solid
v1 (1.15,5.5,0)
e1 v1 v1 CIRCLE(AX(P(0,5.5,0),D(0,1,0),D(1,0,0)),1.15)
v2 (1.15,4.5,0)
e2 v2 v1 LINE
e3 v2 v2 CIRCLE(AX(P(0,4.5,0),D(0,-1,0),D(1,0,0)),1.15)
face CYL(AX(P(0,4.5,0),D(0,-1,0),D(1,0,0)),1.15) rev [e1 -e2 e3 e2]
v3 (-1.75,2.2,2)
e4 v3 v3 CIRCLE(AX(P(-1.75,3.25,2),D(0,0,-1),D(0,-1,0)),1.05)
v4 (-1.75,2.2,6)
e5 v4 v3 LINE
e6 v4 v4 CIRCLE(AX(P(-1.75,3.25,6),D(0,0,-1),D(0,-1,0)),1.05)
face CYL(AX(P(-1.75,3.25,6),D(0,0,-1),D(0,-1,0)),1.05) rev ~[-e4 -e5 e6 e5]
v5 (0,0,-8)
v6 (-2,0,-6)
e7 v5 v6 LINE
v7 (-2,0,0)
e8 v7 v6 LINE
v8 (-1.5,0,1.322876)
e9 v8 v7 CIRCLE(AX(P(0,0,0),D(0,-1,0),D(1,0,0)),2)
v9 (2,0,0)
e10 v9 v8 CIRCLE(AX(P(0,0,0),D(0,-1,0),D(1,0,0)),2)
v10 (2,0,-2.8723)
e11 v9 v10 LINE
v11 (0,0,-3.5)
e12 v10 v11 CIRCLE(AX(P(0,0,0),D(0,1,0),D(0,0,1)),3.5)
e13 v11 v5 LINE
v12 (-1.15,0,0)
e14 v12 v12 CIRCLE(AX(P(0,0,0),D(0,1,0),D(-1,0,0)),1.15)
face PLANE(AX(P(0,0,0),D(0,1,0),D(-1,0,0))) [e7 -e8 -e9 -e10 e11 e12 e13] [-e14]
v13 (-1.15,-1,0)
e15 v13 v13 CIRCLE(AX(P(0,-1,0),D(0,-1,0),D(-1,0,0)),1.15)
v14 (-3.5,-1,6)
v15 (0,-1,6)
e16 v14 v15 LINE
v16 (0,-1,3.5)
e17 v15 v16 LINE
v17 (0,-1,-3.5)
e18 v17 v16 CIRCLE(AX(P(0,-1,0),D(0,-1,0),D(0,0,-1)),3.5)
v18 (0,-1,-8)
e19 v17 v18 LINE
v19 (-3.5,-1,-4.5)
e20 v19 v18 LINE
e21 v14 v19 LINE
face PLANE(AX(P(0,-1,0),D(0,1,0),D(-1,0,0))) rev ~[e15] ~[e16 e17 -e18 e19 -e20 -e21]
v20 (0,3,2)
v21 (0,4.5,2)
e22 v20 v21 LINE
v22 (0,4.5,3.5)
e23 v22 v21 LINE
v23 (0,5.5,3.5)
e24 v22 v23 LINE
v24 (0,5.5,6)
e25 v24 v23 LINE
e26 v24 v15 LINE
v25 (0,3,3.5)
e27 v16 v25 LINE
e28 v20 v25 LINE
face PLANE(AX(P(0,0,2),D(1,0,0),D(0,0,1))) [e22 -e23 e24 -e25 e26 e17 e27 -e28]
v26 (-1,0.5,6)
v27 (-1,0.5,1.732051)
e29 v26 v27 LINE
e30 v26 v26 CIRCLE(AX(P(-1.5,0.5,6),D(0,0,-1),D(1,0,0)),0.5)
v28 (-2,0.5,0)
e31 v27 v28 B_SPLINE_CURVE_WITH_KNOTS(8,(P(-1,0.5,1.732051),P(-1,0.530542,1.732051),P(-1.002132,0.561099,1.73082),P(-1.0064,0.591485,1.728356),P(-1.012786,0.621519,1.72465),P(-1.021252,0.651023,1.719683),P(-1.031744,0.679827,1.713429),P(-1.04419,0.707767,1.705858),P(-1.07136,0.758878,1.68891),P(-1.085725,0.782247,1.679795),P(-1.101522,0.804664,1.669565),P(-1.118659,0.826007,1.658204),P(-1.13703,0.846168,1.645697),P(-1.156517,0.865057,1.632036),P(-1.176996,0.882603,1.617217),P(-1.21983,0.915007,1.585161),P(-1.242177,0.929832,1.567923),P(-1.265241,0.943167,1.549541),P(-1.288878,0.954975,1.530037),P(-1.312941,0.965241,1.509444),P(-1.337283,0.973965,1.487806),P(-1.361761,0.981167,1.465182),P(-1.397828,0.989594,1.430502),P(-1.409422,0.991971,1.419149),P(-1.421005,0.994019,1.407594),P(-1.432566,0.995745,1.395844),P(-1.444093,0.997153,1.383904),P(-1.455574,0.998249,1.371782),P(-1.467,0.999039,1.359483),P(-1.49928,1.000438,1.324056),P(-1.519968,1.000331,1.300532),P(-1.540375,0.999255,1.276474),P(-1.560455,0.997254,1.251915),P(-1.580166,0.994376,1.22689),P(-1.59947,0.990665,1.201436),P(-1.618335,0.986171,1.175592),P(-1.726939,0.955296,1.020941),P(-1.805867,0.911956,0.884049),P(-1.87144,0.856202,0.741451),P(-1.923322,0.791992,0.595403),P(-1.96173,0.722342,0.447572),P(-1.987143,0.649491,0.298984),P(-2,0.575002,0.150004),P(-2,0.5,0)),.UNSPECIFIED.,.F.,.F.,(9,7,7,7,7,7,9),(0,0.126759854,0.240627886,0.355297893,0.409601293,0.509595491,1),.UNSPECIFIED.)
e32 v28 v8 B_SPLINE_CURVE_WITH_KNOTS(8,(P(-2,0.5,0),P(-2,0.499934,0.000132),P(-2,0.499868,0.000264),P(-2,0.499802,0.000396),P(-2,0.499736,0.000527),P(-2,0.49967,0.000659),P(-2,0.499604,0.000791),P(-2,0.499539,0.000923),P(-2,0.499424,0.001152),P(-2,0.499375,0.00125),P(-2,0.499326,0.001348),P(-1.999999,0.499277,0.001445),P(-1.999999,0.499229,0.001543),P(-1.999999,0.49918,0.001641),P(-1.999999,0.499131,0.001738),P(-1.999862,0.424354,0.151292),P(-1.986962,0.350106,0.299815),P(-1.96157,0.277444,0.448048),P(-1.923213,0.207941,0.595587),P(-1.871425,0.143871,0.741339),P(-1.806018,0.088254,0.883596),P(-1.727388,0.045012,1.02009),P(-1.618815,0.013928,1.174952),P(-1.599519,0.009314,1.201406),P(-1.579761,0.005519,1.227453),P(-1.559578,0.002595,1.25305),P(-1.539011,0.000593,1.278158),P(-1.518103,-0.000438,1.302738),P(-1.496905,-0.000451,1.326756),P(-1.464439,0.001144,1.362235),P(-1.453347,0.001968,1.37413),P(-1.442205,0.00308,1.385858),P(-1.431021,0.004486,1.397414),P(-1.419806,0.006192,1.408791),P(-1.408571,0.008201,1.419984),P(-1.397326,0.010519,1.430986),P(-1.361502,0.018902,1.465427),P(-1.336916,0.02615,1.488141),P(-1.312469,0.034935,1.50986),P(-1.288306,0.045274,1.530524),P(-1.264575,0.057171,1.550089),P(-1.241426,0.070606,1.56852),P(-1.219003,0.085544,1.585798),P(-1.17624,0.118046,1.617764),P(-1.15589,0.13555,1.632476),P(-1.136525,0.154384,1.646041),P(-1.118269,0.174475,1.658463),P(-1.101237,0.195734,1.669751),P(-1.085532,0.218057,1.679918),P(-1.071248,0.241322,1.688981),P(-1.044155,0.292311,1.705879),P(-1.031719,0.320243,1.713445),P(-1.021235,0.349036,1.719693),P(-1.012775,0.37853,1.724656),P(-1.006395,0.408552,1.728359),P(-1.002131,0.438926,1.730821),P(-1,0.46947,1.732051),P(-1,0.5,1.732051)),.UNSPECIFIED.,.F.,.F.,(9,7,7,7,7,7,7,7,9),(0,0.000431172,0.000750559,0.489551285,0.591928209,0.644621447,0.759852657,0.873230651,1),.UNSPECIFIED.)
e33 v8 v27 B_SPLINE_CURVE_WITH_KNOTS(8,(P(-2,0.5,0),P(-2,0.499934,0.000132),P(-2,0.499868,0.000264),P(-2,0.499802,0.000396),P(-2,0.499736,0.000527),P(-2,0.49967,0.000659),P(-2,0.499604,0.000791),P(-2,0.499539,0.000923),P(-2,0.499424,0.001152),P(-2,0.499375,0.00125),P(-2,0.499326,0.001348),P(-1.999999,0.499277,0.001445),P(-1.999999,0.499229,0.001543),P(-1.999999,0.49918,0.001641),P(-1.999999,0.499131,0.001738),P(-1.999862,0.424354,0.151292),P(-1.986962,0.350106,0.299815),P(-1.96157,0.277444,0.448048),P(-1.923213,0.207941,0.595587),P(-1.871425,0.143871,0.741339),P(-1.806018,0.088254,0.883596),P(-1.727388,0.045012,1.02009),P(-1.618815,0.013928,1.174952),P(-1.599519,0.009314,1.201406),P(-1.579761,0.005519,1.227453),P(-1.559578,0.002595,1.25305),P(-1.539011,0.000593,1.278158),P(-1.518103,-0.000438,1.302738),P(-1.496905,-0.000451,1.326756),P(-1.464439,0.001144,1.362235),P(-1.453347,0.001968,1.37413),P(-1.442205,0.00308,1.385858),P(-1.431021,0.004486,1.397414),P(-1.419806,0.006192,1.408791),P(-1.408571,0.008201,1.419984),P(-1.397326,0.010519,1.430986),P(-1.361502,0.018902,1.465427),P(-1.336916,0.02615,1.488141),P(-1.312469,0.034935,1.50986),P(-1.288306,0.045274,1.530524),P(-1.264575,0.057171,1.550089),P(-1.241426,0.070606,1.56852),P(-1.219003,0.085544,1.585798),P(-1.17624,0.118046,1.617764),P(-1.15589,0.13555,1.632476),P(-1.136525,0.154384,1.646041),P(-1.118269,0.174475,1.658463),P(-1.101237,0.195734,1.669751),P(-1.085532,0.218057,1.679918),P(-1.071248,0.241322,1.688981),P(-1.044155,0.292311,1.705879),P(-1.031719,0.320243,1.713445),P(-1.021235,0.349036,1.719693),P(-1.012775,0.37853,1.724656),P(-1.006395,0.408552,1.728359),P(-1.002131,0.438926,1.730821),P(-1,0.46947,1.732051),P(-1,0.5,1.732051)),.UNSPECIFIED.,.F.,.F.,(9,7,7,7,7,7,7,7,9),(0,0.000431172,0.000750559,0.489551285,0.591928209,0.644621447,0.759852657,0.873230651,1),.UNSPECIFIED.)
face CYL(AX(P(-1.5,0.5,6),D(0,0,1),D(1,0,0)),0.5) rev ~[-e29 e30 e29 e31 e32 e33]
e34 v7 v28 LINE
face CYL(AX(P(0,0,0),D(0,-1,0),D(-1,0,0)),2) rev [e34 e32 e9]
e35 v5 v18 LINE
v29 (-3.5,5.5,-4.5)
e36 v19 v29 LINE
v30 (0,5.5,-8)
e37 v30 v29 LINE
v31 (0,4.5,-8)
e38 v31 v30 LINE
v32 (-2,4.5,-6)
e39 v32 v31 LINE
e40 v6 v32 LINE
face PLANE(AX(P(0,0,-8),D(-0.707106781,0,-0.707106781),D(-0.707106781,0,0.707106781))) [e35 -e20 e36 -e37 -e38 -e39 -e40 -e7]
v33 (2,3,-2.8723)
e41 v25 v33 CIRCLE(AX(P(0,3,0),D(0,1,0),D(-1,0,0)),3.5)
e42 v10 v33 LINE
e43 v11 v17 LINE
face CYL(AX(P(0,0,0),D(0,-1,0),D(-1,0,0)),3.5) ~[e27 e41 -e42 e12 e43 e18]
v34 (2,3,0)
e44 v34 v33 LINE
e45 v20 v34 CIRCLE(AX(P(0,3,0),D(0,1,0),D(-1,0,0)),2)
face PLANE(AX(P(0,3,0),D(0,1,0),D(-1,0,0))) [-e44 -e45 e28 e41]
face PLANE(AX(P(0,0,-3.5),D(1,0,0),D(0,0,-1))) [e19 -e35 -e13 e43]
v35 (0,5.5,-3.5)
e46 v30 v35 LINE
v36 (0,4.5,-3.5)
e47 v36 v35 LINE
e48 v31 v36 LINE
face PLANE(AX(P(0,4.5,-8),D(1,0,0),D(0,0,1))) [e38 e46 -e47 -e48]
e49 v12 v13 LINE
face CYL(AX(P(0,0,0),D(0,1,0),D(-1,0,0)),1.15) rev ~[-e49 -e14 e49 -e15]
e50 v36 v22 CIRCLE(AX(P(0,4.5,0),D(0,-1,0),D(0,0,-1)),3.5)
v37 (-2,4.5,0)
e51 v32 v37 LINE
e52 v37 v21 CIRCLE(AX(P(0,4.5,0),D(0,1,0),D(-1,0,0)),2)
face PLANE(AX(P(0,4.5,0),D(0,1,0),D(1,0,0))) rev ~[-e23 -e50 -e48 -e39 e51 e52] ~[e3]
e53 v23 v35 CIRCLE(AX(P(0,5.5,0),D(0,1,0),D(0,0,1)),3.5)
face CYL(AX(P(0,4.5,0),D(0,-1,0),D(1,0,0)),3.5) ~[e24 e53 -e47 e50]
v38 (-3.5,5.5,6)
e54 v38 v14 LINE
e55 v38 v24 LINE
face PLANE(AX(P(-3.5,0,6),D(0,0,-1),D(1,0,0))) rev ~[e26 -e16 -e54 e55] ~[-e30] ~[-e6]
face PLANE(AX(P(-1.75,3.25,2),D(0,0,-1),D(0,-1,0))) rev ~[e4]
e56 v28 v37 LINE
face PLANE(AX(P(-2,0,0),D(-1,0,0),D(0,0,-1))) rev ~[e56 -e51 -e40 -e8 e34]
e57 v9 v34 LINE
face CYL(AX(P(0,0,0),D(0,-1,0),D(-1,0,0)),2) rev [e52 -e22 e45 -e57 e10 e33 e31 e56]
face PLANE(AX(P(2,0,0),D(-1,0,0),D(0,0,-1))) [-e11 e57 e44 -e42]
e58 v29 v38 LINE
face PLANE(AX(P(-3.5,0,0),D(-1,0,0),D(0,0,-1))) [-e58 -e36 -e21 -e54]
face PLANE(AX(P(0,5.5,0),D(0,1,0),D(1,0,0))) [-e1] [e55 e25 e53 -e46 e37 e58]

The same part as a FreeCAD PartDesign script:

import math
import FreeCAD as App
import Part
import Sketcher

V = App.Vector
Q = App.Units.Quantity

doc = App.newDocument("Part")
body = doc.addObject("PartDesign::Body", "Body")

# Sketch on XZ plane
sketch1 = body.newObject("Sketcher::SketchObject", "Sketch")
sketch1.AttachmentSupport = (doc.getObject("XZ_Plane"), [""])
sketch1.MapMode = "FlatFace"
sketch1.addGeometry([
    Part.ArcOfCircle(Part.Circle(V(0, 0, 0), V(0, 0, 1), 2), math.radians(0), math.radians(90)),
    Part.LineSegment(V(0, 2, 0), V(0, 3.5, 0)),
    Part.ArcOfCircle(Part.Circle(V(0, 0, 0), V(0, 0, 1), 3.5), math.radians(-55), math.radians(90)),
    Part.LineSegment(V(2, -2.9, 0), V(2, 0, 0)),
], False)
sketch1.addConstraint([
    Sketcher.Constraint("Coincident", 0, 2, 1, 1),
    Sketcher.Constraint("Coincident", 1, 2, 2, 2),
    Sketcher.Constraint("Coincident", 2, 1, 3, 1),
    Sketcher.Constraint("Tangent", 3, 2, 0, 1),
    Sketcher.Constraint("Vertical", 1),
    Sketcher.Constraint("Vertical", 3),
    Sketcher.Constraint("Coincident", 0, 3, -1, 1),
    Sketcher.Constraint("Coincident", 2, 3, -1, 1),
    Sketcher.Constraint("PointOnObject", 0, 2, -2),
    Sketcher.Constraint("Radius", 0, 2.0),
    Sketcher.Constraint("Radius", 2, 3.5),
])
pad1 = body.newObject("PartDesign::Pad", "Pad")
pad1.Profile = sketch1
pad1.Length = 3
pad1.Reversed = True

# Sketch on XZ plane
sketch2 = body.newObject("Sketcher::SketchObject", "Sketch001")
sketch2.AttachmentSupport = (doc.getObject("XZ_Plane"), [""])
sketch2.MapMode = "FlatFace"
sketch2.addGeometry([
    Part.LineSegment(V(-2, 0, 0), V(-2, -6, 0)),  # 0
    Part.LineSegment(V(-2, -6, 0), V(-3.5, -4.5, 0)),  # 1
    Part.LineSegment(V(-3.5, -4.5, 0), V(-3.5, 6, 0)),  # 2
    Part.LineSegment(V(-3.5, 6, 0), V(0, 6, 0)),  # 3
    Part.LineSegment(V(0, 6, 0), V(0, 2, 0)),  # 4
    Part.ArcOfCircle(Part.Circle(V(0, 0, 0), V(0, 0, 1), 2), math.radians(90), math.radians(180)),  # 5
], False)
sketch2.addConstraint([
    Sketcher.Constraint("Coincident", 0, 2, 1, 1),
    Sketcher.Constraint("Coincident", 1, 2, 2, 1),
    Sketcher.Constraint("Coincident", 2, 2, 3, 1),
    Sketcher.Constraint("Coincident", 3, 2, 4, 1),
    Sketcher.Constraint("Coincident", 4, 2, 5, 1),
    Sketcher.Constraint("Tangent", 5, 2, 0, 1),
    Sketcher.Constraint("Vertical", 0),
    Sketcher.Constraint("Vertical", 2),
    Sketcher.Constraint("Horizontal", 3),
    Sketcher.Constraint("Vertical", 4),
    Sketcher.Constraint("Coincident", 5, 3, -1, 1),
    Sketcher.Constraint("PointOnObject", 3, 2, -2),
    Sketcher.Constraint("Radius", 5, 2.0),
    Sketcher.Constraint("DistanceY", 4, 2, 4, 1, 4.0),
    Sketcher.Constraint("DistanceX", 3, 1, 3, 2, 3.5),
    Sketcher.Constraint("DistanceY", 0, 2, 4, 2, 8.0),
    Sketcher.Constraint("Angle", 1, Q("135 deg")),
])
pad2 = body.newObject("PartDesign::Pad", "Pad001")
pad2.Profile = sketch2
pad2.Length = 4.5
pad2.Reversed = True

# Sketch on XZ plane
sketch3 = body.newObject("Sketcher::SketchObject", "Sketch002")
sketch3.AttachmentSupport = (doc.getObject("XZ_Plane"), [""])
sketch3.MapMode = "FlatFace"
sketch3.addGeometry([
    Part.LineSegment(V(0, -8, 0), V(-3.5, -4.5, 0)),  # 0
    Part.LineSegment(V(-3.5, -4.5, 0), V(-3.5, 6, 0)),  # 1
    Part.LineSegment(V(-3.5, 6, 0), V(0, 6, 0)),  # 2
    Part.LineSegment(V(0, 6, 0), V(0, 3.5, 0)),  # 3
    Part.ArcOfCircle(Part.Circle(V(0, 0, 0), V(0, 0, 1), 3.5), math.radians(-90), math.radians(90)),  # 4
    Part.LineSegment(V(0, -3.5, 0), V(0, -8, 0)),  # 5
    Part.Circle(V(0, 0, 0), V(0, 0, 1), 1.1),  # 6
], False)
sketch3.addConstraint([
    Sketcher.Constraint("Coincident", 0, 2, 1, 1),
    Sketcher.Constraint("Coincident", 1, 2, 2, 1),
    Sketcher.Constraint("Coincident", 2, 2, 3, 1),
    Sketcher.Constraint("Coincident", 3, 2, 4, 2),
    Sketcher.Constraint("Coincident", 4, 1, 5, 1),
    Sketcher.Constraint("Coincident", 5, 2, 0, 1),
    Sketcher.Constraint("Vertical", 1),
    Sketcher.Constraint("Horizontal", 2),
    Sketcher.Constraint("Vertical", 3),
    Sketcher.Constraint("Vertical", 5),
    Sketcher.Constraint("Coincident", 4, 3, -1, 1),
    Sketcher.Constraint("Coincident", 6, 3, -1, 1),
    Sketcher.Constraint("PointOnObject", 2, 2, -2),
    Sketcher.Constraint("PointOnObject", 4, 1, -2),
    Sketcher.Constraint("Diameter", 6, 2.3),
    Sketcher.Constraint("Radius", 4, 3.5),
    Sketcher.Constraint("DistanceX", 2, 1, 2, 2, 3.5),
    Sketcher.Constraint("DistanceY", 5, 2, -1, 1, 8.0),
    Sketcher.Constraint("DistanceY", 0, 2, 3, 2, 8.0),
    Sketcher.Constraint("DistanceY", 1, 1, 1, 2, 10.5),
])
pad3 = body.newObject("PartDesign::Pad", "Pad002")
pad3.Profile = sketch3
pad3.Length = 1

# Sketch on XZ plane
sketch4 = body.newObject("Sketcher::SketchObject", "Sketch003")
sketch4.AttachmentSupport = (doc.getObject("XZ_Plane"), [""])
sketch4.MapMode = "FlatFace"
sketch4.AttachmentOffset = App.Placement(V(0, 0, -4.5), App.Rotation())
sketch4.addGeometry([
    Part.LineSegment(V(0, -3.5, 0), V(0, -8, 0)),  # 0
    Part.LineSegment(V(0, -8, 0), V(-3.5, -4.5, 0)),  # 1
    Part.LineSegment(V(-3.5, -4.5, 0), V(-3.5, 6, 0)),  # 2
    Part.LineSegment(V(-3.5, 6, 0), V(0, 6, 0)),  # 3
    Part.LineSegment(V(0, 6, 0), V(0, 3.5, 0)),  # 4
    Part.ArcOfCircle(Part.Circle(V(0, 0, 0), V(0, 0, 1), 3.5), math.radians(-90), math.radians(90)),  # 5
    Part.Circle(V(0, 0, 0), V(0, 0, 1), 1.1),  # 6
], False)
sketch4.addConstraint([
    Sketcher.Constraint("Coincident", 0, 2, 1, 1),
    Sketcher.Constraint("Coincident", 1, 2, 2, 1),
    Sketcher.Constraint("Coincident", 2, 2, 3, 1),
    Sketcher.Constraint("Coincident", 3, 2, 4, 1),
    Sketcher.Constraint("Coincident", 4, 2, 5, 2),
    Sketcher.Constraint("Coincident", 5, 1, 0, 1),
    Sketcher.Constraint("Vertical", 0),
    Sketcher.Constraint("Vertical", 2),
    Sketcher.Constraint("Horizontal", 3),
    Sketcher.Constraint("Vertical", 4),
    Sketcher.Constraint("Coincident", 5, 3, -1, 1),
    Sketcher.Constraint("Coincident", 6, 3, -1, 1),
    Sketcher.Constraint("PointOnObject", 0, 2, -2),
    Sketcher.Constraint("PointOnObject", 3, 2, -2),
    Sketcher.Constraint("Diameter", 6, 2.3),
    Sketcher.Constraint("Radius", 5, 3.5),
    Sketcher.Constraint("Angle", 1, Q("135 deg")),
    Sketcher.Constraint("DistanceX", 3, 1, 3, 2, 3.5),
    Sketcher.Constraint("DistanceY", 0, 2, -1, 1, 8.0),
    Sketcher.Constraint("DistanceY", 2, 1, 2, 2, 10.5),
])
pad4 = body.newObject("PartDesign::Pad", "Pad003")
pad4.Profile = sketch4
pad4.Length = 1
pad4.Reversed = True

# Sketch on XY plane
sketch5 = body.newObject("Sketcher::SketchObject", "Sketch004")
sketch5.AttachmentSupport = (doc.getObject("XY_Plane"), [""])
sketch5.MapMode = "FlatFace"
sketch5.AttachmentOffset = App.Placement(V(0, 0, 6), App.Rotation())
sketch5.addGeometry(Part.Circle(V(-1.5, 0.5, 0), V(0, 0, 1), 0.5), False)
sketch5.addConstraint([
    Sketcher.Constraint("Diameter", 0, 1.0),
    Sketcher.Constraint("DistanceX", 0, 3, -1, 1, 1.5),
    Sketcher.Constraint("DistanceY", -1, 1, 0, 3, 0.5),
])
pocket1 = body.newObject("PartDesign::Pocket", "Pocket")
pocket1.Profile = sketch5
pocket1.Length = 6

# Sketch on XY plane
sketch6 = body.newObject("Sketcher::SketchObject", "Sketch005")
sketch6.AttachmentSupport = (doc.getObject("XY_Plane"), [""])
sketch6.MapMode = "FlatFace"
sketch6.AttachmentOffset = App.Placement(V(0, 0, 6), App.Rotation())
sketch6.addGeometry(Part.Circle(V(-1.8, 3.2, 0), V(0, 0, 1), 1.1), False)
sketch6.addConstraint([
    Sketcher.Constraint("Diameter", 0, 2.1),
    Sketcher.Constraint("DistanceX", 0, 3, -1, 1, 1.75),
    Sketcher.Constraint("DistanceY", -1, 1, 0, 3, 3.25),
])
doc.recompute()
hole = body.newObject("PartDesign::Hole", "Hole")
hole.Profile = sketch6
hole.ThreadType = "None"
hole.Diameter = 2.1
hole.DepthType = "Dimension"
hole.Depth = 4
hole.DrillPoint = "Flat"

doc.recompute()
